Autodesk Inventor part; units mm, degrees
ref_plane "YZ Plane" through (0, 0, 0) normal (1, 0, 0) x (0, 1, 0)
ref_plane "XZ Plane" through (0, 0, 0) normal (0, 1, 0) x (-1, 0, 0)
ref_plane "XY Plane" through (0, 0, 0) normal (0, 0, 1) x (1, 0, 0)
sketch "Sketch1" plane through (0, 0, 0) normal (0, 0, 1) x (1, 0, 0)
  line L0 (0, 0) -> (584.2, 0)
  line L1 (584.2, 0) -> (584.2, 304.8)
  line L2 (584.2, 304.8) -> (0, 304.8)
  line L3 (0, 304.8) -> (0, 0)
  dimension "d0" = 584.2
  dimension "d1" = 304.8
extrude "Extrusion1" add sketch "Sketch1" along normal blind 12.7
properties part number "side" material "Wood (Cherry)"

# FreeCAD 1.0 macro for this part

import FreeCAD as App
import Part
import Sketcher
Q = App.Units.Quantity


def add_polygon(sketch, points):
    """Adds a closed chain of lines whose ends are joined by coincident constraints."""
    first, n = sketch.GeometryCount, len(points)
    for a, b in zip(points, points[1:] + points[:1]):
        sketch.addGeometry(Part.LineSegment(App.Vector(*a, 0), App.Vector(*b, 0)), False)
    for i in range(n):
        sketch.addConstraint(Sketcher.Constraint("Coincident", first + i, 2, first + (i + 1) % n, 1))

doc = App.newDocument("Part")
params = doc.addObject("Spreadsheet::Sheet", "Params")
for row, (alias, value) in enumerate([
    ("sketch1_width", "23 in"),
    ("sketch1_height", "12 in"),
    ("pad1_length", "0.5 in"),
], start=1):
    params.set(f"A{row}", alias)
    params.set(f"B{row}", "=" + value)
    params.setAlias(f"B{row}", alias)

body = doc.addObject("PartDesign::Body", "Body")

# Sketch on XY plane
sketch1 = body.newObject("Sketcher::SketchObject", "Sketch")
sketch1.AttachmentSupport = (doc.getObject("XY_Plane"), [""])
sketch1.MapMode = "FlatFace"
add_polygon(sketch1, [(0, 305), (0, 0), (584, 0), (584, 305)])  # lines 0-3
sketch1.addConstraint(Sketcher.Constraint("Vertical", 0))
sketch1.addConstraint(Sketcher.Constraint("Horizontal", 1))
sketch1.addConstraint(Sketcher.Constraint("Vertical", 2))
sketch1.addConstraint(Sketcher.Constraint("Horizontal", 3))
sketch1.addConstraint(Sketcher.Constraint("Coincident", 0, 2, -1, 1))
sketch1.addConstraint(Sketcher.Constraint("DistanceX", 1, 1, 1, 2, Q("23 in")))
sketch1.addConstraint(Sketcher.Constraint("DistanceY", 0, 2, 0, 1, Q("12 in")))
sketch1.setExpression("Constraints[9]", "Params.sketch1_width")
sketch1.setExpression("Constraints[10]", "Params.sketch1_height")
pad1 = body.newObject("PartDesign::Pad", "Pad")
pad1.Profile = sketch1
pad1.setExpression("Length", "Params.pad1_length")

doc.recompute()
